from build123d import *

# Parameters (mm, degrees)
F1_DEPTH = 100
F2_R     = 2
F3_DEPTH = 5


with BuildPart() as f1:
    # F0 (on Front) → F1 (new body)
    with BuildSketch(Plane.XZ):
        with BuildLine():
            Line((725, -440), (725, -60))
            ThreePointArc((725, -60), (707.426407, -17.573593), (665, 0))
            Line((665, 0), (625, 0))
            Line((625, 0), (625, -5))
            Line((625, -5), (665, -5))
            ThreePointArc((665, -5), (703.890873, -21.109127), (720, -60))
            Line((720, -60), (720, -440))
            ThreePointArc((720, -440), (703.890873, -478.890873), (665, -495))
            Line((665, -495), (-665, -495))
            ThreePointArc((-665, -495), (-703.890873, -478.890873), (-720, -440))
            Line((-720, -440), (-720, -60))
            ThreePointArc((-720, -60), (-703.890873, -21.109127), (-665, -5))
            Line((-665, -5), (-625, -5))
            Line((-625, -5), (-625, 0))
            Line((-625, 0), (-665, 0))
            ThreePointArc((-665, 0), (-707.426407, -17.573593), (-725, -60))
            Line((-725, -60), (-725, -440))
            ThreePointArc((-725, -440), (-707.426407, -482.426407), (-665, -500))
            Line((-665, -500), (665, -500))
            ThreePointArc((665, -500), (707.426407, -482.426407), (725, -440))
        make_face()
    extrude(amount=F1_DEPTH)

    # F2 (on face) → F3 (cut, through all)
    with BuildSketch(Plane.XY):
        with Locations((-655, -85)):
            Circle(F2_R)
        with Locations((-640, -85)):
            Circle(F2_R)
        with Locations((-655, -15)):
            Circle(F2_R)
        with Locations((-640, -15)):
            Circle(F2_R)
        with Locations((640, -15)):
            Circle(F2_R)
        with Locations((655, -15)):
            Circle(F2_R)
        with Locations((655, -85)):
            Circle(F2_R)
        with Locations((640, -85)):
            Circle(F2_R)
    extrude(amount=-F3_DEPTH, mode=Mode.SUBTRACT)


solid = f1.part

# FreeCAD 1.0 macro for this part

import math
import FreeCAD as App
import Part
import Sketcher
from FreeCAD import Vector

doc = App.newDocument("Part")
body = doc.addObject("PartDesign::Body", "Body")

# Sketch on XZ plane
sketch1 = body.newObject("Sketcher::SketchObject", "Sketch")
sketch1.AttachmentSupport = (doc.getObject("XZ_Plane"), [""])
sketch1.MapMode = "FlatFace"
sketch1.addGeometry([
    Part.LineSegment(Vector(725, -440, 0), Vector(725, -60, 0)),  # 0
    Part.ArcOfCircle(Part.Circle(Vector(665, -60, 0), Vector(0, 0, 1), 60), math.radians(0), math.radians(90)),  # 1
    Part.LineSegment(Vector(665, 0, 0), Vector(625, 0, 0)),  # 2
    Part.LineSegment(Vector(625, 0, 0), Vector(625, -5, 0)),  # 3
    Part.LineSegment(Vector(625, -5, 0), Vector(665, -5, 0)),  # 4
    Part.ArcOfCircle(Part.Circle(Vector(665, -60, 0), Vector(0, 0, 1), 55), math.radians(0), math.radians(90)),  # 5
    Part.LineSegment(Vector(720, -60, 0), Vector(720, -440, 0)),  # 6
    Part.ArcOfCircle(Part.Circle(Vector(665, -440, 0), Vector(0, 0, 1), 55), math.radians(-90), math.radians(0)),  # 7
    Part.LineSegment(Vector(665, -495, 0), Vector(-665, -495, 0)),  # 8
    Part.ArcOfCircle(Part.Circle(Vector(-665, -440, 0), Vector(0, 0, 1), 55), math.radians(180), math.radians(270)),  # 9
    Part.LineSegment(Vector(-720, -440, 0), Vector(-720, -60, 0)),  # 10
    Part.ArcOfCircle(Part.Circle(Vector(-665, -60, 0), Vector(0, 0, 1), 55), math.radians(90), math.radians(180)),  # 11
    Part.LineSegment(Vector(-665, -5, 0), Vector(-625, -5, 0)),  # 12
    Part.LineSegment(Vector(-625, -5, 0), Vector(-625, 0, 0)),  # 13
    Part.LineSegment(Vector(-625, 0, 0), Vector(-665, 0, 0)),  # 14
    Part.ArcOfCircle(Part.Circle(Vector(-665, -60, 0), Vector(0, 0, 1), 60), math.radians(90), math.radians(180)),  # 15
    Part.LineSegment(Vector(-725, -60, 0), Vector(-725, -440, 0)),  # 16
    Part.ArcOfCircle(Part.Circle(Vector(-665, -440, 0), Vector(0, 0, 1), 60), math.radians(180), math.radians(270)),  # 17
    Part.LineSegment(Vector(-665, -500, 0), Vector(665, -500, 0)),  # 18
    Part.ArcOfCircle(Part.Circle(Vector(665, -440, 0), Vector(0, 0, 1), 60), math.radians(-90), math.radians(0)),  # 19
], False)
sketch1.addConstraint([
    Sketcher.Constraint("Tangent", 0, 2, 1, 1),
    Sketcher.Constraint("Tangent", 1, 2, 2, 1),
    Sketcher.Constraint("Coincident", 2, 2, 3, 1),
    Sketcher.Constraint("Coincident", 3, 2, 4, 1),
    Sketcher.Constraint("Tangent", 4, 2, 5, 2),
    Sketcher.Constraint("Tangent", 5, 1, 6, 1),
    Sketcher.Constraint("Tangent", 6, 2, 7, 2),
    Sketcher.Constraint("Tangent", 7, 1, 8, 1),
    Sketcher.Constraint("Tangent", 8, 2, 9, 2),
    Sketcher.Constraint("Tangent", 9, 1, 10, 1),
    Sketcher.Constraint("Tangent", 10, 2, 11, 2),
    Sketcher.Constraint("Tangent", 11, 1, 12, 1),
    Sketcher.Constraint("Coincident", 12, 2, 13, 1),
    Sketcher.Constraint("Coincident", 13, 2, 14, 1),
    Sketcher.Constraint("Tangent", 14, 2, 15, 1),
    Sketcher.Constraint("Tangent", 15, 2, 16, 1),
    Sketcher.Constraint("Tangent", 16, 2, 17, 1),
    Sketcher.Constraint("Tangent", 17, 2, 18, 1),
    Sketcher.Constraint("Tangent", 18, 2, 19, 1),
    Sketcher.Constraint("Tangent", 19, 2, 0, 1),
    Sketcher.Constraint("Vertical", 0),
    Sketcher.Constraint("Horizontal", 2),
    Sketcher.Constraint("Vertical", 3),
    Sketcher.Constraint("Horizontal", 4),
    Sketcher.Constraint("Vertical", 6),
    Sketcher.Constraint("Horizontal", 8),
    Sketcher.Constraint("Vertical", 10),
    Sketcher.Constraint("Horizontal", 12),
    Sketcher.Constraint("Vertical", 13),
    Sketcher.Constraint("Horizontal", 14),
    Sketcher.Constraint("Vertical", 16),
    Sketcher.Constraint("Horizontal", 18),
    Sketcher.Constraint("Coincident", 5, 3, 1, 3),
    Sketcher.Constraint("Coincident", 15, 3, 11, 3),
    Sketcher.Constraint("Coincident", 17, 3, 9, 3),
    Sketcher.Constraint("Coincident", 19, 3, 7, 3),
    Sketcher.Constraint("Equal", 5, 7),
    Sketcher.Constraint("Equal", 7, 9),
    Sketcher.Constraint("Equal", 9, 11),
    Sketcher.Constraint("Symmetric", 2, 2, 13, 2, -1, 1),
    Sketcher.Constraint("Symmetric", 1, 3, 11, 3, -2),
    Sketcher.Constraint("Radius", 1, 60.0),
    Sketcher.Constraint("Radius", 5, 55.0),
    Sketcher.Constraint("DistanceX", 2, 2, 2, 1, 40.0),
    Sketcher.Constraint("DistanceX", 8, 2, 8, 1, 1330.0),
    Sketcher.Constraint("DistanceY", 0, 1, 0, 2, 380.0),
])
pad1 = body.newObject("PartDesign::Pad", "Pad")
pad1.Profile = sketch1
pad1.Length = 100

# Sketch on XY plane
sketch2 = body.newObject("Sketcher::SketchObject", "Sketch001")
sketch2.AttachmentSupport = (doc.getObject("XY_Plane"), [""])
sketch2.MapMode = "FlatFace"
sketch2.addGeometry([
    Part.Circle(Vector(-655, -85, 0), Vector(0, 0, 1), 2),  # 0
    Part.Circle(Vector(-640, -85, 0), Vector(0, 0, 1), 2),  # 1
    Part.Circle(Vector(-655, -15, 0), Vector(0, 0, 1), 2),  # 2
    Part.Circle(Vector(-640, -15, 0), Vector(0, 0, 1), 2),  # 3
    Part.Circle(Vector(640, -15, 0), Vector(0, 0, 1), 2),  # 4
    Part.Circle(Vector(655, -15, 0), Vector(0, 0, 1), 2),  # 5
    Part.Circle(Vector(655, -85, 0), Vector(0, 0, 1), 2),  # 6
    Part.Circle(Vector(640, -85, 0), Vector(0, 0, 1), 2),  # 7
], False)
sketch2.addConstraint([
    Sketcher.Constraint("Equal", 0, 1),
    Sketcher.Constraint("Equal", 1, 2),
    Sketcher.Constraint("Equal", 2, 3),
    Sketcher.Constraint("Equal", 3, 4),
    Sketcher.Constraint("Equal", 4, 5),
    Sketcher.Constraint("Equal", 5, 6),
    Sketcher.Constraint("Equal", 6, 7),
    Sketcher.Constraint("Symmetric", 3, 3, 4, 3, -2),
    Sketcher.Constraint("Symmetric", 2, 3, 5, 3, -2),
    Sketcher.Constraint("Symmetric", 0, 3, 6, 3, -2),
    Sketcher.Constraint("Symmetric", 1, 3, 7, 3, -2),
    Sketcher.Constraint("Horizontal", 0, 3, 1, 3),
    Sketcher.Constraint("Horizontal", 2, 3, 3, 3),
    Sketcher.Constraint("Vertical", 0, 3, 2, 3),
    Sketcher.Constraint("Vertical", 1, 3, 3, 3),
    Sketcher.Constraint("Diameter", 0, 4.0),
    Sketcher.Constraint("DistanceX", 0, 3, -1, 1, 655.0),
    Sketcher.Constraint("DistanceY", 0, 3, -1, 1, 85.0),
    Sketcher.Constraint("DistanceX", 1, 3, -1, 1, 640.0),
    Sketcher.Constraint("DistanceY", 2, 3, -1, 1, 15.0),
])
pocket1 = body.newObject("PartDesign::Pocket", "Pocket")
pocket1.Profile = sketch2
pocket1.Length = 5

doc.recompute()
